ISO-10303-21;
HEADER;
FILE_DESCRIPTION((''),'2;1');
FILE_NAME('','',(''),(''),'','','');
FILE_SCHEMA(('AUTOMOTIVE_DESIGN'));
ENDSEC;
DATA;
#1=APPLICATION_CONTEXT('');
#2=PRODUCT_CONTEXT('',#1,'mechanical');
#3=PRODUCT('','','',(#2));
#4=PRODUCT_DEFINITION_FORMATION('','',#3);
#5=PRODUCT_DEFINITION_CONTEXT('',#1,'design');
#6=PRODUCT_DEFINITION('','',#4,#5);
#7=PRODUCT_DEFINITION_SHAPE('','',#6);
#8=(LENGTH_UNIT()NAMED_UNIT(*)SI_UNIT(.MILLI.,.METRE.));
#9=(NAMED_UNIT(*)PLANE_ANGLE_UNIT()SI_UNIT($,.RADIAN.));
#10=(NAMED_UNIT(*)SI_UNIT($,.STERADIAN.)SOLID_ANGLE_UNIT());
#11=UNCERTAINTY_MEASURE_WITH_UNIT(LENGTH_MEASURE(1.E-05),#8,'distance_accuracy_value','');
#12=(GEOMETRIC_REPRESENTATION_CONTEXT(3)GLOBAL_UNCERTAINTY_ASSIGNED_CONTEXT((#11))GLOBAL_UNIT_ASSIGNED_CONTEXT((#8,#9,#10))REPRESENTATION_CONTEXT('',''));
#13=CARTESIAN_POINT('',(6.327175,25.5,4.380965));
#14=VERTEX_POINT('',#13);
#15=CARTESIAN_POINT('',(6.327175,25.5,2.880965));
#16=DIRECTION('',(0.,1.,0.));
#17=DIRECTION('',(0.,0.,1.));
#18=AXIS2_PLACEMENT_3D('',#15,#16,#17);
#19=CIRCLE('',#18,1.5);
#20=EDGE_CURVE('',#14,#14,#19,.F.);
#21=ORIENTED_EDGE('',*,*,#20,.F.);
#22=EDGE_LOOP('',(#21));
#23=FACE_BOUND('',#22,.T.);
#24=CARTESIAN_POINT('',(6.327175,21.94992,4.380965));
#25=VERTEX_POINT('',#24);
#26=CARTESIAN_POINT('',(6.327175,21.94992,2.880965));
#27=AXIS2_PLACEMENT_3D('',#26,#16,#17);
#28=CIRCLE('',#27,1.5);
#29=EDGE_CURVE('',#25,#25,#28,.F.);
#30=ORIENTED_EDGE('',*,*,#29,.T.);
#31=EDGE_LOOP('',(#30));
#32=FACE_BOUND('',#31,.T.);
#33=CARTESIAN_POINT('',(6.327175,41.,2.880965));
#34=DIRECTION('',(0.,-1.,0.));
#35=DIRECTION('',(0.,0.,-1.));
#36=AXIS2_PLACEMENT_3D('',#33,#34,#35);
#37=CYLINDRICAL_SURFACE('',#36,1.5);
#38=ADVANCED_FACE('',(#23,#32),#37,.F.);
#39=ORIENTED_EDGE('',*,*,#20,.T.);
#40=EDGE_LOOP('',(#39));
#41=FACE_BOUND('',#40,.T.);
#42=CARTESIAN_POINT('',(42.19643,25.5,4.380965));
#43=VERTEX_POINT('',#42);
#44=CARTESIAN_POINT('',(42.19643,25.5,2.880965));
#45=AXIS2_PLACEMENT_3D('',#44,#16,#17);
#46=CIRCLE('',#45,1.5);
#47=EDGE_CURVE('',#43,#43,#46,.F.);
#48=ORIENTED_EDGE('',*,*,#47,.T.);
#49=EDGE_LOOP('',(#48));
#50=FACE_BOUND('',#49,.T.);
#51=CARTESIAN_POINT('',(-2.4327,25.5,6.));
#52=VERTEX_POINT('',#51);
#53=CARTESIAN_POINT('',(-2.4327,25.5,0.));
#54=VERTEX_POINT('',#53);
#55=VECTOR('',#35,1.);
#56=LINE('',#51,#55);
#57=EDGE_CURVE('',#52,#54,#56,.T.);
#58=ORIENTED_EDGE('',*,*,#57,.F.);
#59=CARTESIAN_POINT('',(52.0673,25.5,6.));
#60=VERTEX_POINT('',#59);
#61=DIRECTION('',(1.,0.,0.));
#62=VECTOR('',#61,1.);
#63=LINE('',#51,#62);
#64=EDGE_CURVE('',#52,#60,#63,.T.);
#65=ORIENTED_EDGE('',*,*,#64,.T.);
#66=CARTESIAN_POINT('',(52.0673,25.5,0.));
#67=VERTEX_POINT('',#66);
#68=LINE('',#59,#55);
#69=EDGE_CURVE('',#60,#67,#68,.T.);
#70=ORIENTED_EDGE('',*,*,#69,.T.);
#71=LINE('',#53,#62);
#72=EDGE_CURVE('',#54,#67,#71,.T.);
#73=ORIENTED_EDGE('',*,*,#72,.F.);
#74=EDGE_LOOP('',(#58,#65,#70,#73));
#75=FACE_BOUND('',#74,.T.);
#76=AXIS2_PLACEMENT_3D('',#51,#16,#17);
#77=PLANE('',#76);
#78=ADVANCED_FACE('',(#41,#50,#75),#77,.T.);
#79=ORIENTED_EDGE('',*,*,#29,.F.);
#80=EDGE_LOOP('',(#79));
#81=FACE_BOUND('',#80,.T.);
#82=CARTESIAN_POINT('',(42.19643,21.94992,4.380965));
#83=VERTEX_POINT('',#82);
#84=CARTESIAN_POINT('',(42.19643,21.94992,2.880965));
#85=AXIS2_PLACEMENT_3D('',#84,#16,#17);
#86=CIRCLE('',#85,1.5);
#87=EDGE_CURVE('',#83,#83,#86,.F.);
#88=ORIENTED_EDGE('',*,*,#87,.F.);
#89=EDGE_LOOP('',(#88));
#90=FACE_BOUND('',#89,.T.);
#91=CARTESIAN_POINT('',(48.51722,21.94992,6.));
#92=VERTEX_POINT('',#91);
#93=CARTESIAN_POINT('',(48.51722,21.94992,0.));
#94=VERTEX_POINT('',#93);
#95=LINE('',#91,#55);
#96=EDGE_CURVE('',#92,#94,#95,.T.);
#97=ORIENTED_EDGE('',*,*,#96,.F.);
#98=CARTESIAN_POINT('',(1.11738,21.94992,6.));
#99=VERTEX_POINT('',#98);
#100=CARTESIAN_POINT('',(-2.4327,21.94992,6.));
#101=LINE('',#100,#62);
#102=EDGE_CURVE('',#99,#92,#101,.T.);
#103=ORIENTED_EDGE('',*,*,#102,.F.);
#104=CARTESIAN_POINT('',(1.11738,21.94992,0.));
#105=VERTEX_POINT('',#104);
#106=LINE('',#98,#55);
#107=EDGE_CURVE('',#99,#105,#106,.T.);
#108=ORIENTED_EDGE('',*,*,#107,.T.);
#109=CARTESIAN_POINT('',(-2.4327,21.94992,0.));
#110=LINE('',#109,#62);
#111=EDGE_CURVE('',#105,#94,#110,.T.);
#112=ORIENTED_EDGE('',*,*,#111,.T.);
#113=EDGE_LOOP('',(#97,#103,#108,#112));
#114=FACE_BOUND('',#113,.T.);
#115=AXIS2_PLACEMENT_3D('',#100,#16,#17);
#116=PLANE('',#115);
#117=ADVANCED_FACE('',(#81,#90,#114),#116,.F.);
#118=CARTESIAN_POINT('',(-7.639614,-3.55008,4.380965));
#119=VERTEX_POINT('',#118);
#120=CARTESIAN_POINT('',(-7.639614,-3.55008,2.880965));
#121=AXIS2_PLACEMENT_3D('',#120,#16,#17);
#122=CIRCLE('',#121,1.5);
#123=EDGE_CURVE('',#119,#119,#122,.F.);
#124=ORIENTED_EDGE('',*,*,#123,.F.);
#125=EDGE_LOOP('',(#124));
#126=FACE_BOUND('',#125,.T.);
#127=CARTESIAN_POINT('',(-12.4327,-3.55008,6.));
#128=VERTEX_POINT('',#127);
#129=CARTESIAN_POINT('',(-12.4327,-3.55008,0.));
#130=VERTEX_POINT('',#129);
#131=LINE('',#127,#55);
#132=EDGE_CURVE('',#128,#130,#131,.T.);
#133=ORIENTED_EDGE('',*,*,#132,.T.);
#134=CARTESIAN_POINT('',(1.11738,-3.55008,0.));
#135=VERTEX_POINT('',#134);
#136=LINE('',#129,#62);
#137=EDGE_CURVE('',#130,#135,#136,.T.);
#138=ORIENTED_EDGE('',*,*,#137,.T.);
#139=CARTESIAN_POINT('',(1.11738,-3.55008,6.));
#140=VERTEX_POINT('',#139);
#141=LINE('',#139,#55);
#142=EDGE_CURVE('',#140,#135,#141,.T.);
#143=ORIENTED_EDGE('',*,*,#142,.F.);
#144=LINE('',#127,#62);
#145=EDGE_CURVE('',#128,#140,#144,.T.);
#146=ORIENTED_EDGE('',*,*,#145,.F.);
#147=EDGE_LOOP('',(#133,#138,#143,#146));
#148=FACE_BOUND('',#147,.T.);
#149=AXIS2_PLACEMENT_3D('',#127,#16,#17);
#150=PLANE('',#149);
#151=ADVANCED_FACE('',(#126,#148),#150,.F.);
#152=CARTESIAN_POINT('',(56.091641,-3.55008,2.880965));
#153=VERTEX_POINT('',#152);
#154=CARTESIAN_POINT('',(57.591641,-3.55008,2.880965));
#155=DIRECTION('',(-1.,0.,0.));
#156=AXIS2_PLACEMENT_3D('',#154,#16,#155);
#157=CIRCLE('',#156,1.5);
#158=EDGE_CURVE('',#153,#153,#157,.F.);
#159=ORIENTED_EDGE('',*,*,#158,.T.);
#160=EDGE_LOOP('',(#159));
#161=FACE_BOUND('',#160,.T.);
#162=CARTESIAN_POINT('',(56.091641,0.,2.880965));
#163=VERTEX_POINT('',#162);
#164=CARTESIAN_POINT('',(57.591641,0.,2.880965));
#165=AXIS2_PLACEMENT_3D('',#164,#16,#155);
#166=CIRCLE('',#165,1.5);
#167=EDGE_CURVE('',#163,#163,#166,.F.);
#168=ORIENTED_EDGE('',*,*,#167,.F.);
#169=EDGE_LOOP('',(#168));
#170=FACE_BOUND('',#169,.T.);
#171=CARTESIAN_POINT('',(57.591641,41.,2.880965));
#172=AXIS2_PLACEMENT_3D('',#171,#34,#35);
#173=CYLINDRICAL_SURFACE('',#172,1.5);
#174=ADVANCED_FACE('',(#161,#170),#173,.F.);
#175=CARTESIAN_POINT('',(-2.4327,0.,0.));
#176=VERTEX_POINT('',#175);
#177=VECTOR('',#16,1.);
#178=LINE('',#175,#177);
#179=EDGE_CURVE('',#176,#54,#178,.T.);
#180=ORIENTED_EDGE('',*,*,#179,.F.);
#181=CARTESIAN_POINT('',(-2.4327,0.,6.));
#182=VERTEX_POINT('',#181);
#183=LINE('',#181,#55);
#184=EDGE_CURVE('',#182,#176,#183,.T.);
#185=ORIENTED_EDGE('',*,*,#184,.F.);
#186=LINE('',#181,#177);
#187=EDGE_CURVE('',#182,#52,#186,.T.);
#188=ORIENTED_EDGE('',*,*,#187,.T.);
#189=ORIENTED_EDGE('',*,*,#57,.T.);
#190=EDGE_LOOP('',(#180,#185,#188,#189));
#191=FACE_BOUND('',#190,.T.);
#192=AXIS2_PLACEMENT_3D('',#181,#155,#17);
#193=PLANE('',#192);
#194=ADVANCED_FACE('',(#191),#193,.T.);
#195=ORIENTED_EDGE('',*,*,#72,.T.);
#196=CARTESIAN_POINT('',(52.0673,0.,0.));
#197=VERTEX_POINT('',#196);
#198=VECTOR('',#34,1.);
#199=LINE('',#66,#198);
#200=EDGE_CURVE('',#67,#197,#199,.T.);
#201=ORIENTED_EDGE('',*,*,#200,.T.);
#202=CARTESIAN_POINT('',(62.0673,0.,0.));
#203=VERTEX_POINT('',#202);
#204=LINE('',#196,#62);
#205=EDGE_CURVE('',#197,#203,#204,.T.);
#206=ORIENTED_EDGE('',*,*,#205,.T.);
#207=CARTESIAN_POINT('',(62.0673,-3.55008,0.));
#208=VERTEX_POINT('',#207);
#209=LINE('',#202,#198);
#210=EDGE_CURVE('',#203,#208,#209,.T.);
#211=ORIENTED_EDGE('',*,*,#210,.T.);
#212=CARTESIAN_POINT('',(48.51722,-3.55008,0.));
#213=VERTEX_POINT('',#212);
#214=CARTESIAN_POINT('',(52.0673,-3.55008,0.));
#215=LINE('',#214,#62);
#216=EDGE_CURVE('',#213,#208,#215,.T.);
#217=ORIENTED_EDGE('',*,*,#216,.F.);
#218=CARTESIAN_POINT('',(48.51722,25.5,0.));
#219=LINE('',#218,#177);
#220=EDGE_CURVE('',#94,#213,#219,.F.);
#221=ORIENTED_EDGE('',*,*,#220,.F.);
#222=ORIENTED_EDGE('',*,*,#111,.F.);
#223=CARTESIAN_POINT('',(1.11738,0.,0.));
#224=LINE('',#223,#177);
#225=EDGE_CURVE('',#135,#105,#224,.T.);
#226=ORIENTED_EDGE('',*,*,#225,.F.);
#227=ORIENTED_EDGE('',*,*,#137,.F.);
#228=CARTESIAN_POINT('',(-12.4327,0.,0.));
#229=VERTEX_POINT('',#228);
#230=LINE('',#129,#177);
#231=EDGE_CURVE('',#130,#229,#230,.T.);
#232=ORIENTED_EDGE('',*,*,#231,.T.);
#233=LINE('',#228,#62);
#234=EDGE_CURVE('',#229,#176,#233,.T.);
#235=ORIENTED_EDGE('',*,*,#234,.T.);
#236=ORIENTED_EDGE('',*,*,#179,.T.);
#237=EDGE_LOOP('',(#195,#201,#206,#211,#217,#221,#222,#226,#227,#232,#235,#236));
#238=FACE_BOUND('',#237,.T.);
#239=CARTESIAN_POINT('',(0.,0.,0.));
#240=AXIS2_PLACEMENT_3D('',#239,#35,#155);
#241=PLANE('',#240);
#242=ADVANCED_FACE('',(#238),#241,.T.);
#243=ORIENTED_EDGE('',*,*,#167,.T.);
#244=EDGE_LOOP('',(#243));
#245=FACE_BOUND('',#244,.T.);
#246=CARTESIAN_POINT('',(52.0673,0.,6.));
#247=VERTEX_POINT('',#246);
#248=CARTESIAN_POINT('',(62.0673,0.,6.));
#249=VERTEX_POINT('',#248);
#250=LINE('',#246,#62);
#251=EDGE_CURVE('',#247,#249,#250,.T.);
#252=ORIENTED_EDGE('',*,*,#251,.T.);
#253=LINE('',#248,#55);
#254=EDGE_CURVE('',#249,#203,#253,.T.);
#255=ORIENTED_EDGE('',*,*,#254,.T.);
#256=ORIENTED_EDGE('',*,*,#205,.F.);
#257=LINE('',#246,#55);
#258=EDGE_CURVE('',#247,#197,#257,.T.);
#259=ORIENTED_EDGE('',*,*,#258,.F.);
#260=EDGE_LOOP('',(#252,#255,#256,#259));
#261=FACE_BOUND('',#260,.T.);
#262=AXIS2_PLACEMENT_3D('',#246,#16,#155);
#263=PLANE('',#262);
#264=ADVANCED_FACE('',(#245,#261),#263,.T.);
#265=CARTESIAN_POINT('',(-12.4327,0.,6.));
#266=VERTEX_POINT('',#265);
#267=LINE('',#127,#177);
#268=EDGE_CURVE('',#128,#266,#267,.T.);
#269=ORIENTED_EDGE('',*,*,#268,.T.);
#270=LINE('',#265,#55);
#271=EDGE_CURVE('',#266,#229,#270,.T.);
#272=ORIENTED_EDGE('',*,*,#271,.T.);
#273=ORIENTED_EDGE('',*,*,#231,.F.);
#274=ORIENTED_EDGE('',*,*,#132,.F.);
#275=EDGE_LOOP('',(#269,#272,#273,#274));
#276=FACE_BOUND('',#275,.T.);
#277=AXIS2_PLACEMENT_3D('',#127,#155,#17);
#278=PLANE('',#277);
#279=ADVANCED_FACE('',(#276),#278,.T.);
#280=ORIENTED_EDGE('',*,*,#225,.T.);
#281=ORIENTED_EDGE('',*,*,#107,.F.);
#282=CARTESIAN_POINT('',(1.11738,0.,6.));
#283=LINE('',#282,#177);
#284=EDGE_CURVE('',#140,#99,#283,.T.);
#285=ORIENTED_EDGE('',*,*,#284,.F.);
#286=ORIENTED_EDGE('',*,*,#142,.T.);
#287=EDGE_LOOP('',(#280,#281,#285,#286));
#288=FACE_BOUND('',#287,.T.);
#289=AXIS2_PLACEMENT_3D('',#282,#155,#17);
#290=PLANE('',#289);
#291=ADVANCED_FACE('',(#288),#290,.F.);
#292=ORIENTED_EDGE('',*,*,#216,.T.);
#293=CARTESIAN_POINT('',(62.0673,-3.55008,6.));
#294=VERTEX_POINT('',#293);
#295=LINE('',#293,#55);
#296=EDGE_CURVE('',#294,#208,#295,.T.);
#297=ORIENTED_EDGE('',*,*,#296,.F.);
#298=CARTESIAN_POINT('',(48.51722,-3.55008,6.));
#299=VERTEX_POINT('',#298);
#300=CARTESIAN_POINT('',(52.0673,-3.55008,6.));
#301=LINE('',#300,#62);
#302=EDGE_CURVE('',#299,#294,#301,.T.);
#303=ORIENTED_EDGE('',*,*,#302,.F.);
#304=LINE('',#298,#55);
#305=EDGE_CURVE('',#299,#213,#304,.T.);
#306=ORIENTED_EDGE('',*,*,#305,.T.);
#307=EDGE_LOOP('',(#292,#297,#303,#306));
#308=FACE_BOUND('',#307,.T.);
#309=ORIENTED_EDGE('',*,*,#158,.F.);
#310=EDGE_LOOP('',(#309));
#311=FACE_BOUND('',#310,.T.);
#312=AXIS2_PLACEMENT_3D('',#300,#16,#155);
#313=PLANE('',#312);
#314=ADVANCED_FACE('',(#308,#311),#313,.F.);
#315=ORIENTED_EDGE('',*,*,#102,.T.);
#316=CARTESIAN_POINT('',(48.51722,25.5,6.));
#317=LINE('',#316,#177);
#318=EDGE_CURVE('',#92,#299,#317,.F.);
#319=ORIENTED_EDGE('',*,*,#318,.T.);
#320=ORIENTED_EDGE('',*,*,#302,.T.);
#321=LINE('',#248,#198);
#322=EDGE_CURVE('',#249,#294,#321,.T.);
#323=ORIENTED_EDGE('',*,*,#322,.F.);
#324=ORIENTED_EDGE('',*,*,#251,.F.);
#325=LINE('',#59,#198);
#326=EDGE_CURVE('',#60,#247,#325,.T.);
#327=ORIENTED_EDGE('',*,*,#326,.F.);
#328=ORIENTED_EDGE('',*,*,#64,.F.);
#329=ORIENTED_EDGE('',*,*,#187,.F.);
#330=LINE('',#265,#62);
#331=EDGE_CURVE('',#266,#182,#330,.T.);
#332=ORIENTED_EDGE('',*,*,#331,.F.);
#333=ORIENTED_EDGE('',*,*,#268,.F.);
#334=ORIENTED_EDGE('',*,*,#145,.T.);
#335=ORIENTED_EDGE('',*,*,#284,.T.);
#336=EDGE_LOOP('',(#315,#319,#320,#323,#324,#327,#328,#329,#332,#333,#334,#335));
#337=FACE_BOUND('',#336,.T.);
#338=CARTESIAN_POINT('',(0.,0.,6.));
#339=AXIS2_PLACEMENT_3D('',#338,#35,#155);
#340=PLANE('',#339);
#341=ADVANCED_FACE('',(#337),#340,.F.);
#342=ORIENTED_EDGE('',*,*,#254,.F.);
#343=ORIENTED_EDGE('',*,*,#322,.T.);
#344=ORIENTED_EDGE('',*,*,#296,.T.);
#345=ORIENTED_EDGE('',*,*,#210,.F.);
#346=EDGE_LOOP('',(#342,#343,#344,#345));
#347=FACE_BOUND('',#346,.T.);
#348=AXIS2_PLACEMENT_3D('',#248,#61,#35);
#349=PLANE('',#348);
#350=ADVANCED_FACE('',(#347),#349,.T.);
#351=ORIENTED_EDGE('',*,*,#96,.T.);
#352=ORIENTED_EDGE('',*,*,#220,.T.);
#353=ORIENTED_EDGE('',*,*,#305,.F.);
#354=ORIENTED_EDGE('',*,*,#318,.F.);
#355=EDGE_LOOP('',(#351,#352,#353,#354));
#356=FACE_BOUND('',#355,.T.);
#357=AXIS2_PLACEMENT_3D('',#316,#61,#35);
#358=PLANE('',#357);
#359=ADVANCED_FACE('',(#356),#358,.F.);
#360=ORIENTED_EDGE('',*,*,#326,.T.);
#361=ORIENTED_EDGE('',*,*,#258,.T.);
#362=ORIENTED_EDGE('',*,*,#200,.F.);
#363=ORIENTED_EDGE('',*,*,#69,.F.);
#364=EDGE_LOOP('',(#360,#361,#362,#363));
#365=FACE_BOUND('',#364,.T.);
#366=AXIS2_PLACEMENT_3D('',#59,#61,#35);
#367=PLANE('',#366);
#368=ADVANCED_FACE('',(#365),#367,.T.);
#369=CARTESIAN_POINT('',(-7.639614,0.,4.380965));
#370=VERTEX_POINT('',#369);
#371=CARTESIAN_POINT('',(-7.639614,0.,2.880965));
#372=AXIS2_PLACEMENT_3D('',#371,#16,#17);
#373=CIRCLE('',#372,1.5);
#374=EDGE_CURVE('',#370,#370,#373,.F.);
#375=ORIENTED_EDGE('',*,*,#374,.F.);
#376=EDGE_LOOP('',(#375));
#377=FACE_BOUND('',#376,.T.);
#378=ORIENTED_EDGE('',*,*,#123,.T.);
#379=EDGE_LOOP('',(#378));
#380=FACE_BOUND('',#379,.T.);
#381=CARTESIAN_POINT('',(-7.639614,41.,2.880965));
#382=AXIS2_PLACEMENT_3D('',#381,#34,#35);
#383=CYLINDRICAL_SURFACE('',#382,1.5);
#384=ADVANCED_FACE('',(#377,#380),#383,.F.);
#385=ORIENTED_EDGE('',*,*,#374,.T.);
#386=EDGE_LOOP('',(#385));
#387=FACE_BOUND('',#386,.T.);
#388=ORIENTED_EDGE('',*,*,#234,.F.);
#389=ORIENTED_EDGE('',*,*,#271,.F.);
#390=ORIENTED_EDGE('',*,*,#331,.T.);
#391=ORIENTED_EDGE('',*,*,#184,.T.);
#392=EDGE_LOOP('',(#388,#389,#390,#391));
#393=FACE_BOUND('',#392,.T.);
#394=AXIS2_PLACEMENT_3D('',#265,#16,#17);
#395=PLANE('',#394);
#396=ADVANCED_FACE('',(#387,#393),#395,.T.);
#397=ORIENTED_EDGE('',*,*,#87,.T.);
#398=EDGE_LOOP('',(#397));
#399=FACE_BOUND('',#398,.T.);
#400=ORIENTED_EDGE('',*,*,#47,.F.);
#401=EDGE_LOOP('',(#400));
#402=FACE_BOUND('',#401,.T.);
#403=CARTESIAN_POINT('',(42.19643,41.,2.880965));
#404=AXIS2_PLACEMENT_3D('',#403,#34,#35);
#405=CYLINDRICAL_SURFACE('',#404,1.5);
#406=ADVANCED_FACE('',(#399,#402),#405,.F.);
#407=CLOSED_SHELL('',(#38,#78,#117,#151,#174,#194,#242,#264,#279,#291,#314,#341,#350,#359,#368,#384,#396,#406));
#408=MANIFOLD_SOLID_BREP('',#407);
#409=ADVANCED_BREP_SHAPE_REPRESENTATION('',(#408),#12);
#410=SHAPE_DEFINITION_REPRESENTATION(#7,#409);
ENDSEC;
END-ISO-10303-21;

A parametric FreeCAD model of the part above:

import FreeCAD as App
import Part
import Sketcher


def add_polygon(sketch, points):
    """Adds a closed chain of lines whose ends are joined by coincident constraints."""
    first, n = sketch.GeometryCount, len(points)
    for a, b in zip(points, points[1:] + points[:1]):
        sketch.addGeometry(Part.LineSegment(App.Vector(*a, 0), App.Vector(*b, 0)), False)
    for i in range(n):
        sketch.addConstraint(Sketcher.Constraint("Coincident", first + i, 2, first + (i + 1) % n, 1))

doc = App.newDocument("Part")
body = doc.addObject("PartDesign::Body", "Body")

sketch1 = doc.addObject("Sketcher::SketchObject", "Sketch")
body.addObject(sketch1)
sketch1.AttachmentSupport = (doc.XY_Plane, [""])
sketch1.MapMode = "FlatFace"
add_polygon(sketch1, [(-2.4, 0), (-12.4, 0), (-12.4, -3.6), (1.1, -3.6), (1.1, 21.9), (48.5, 21.9), (48.5, -3.6), (62.1, -3.6), (62.1, 0), (52.1, 0), (52.1, 25.5), (-2.4, 25.5)])
sketch1.addConstraint(Sketcher.Constraint("Horizontal", 0))
sketch1.addConstraint(Sketcher.Constraint("Vertical", 1))
sketch1.addConstraint(Sketcher.Constraint("Horizontal", 2))
sketch1.addConstraint(Sketcher.Constraint("Vertical", 3))
sketch1.addConstraint(Sketcher.Constraint("Horizontal", 4))
sketch1.addConstraint(Sketcher.Constraint("Vertical", 5))
sketch1.addConstraint(Sketcher.Constraint("Horizontal", 6))
sketch1.addConstraint(Sketcher.Constraint("Vertical", 7))
sketch1.addConstraint(Sketcher.Constraint("Horizontal", 8))
sketch1.addConstraint(Sketcher.Constraint("Vertical", 9))
sketch1.addConstraint(Sketcher.Constraint("Horizontal", 10))
sketch1.addConstraint(Sketcher.Constraint("Vertical", 11))
sketch1.addConstraint(Sketcher.Constraint("PointOnObject", 0, 2, -1))
sketch1.addConstraint(Sketcher.Constraint("PointOnObject", 7, 2, -1))
sketch1.addConstraint(Sketcher.Constraint("Horizontal", 2, 2, 5, 2))
sketch1.addConstraint(Sketcher.Constraint("Equal", 2, 6))
sketch1.addConstraint(Sketcher.Constraint("Equal", 0, 8))
sketch1.addConstraint(Sketcher.Constraint("Equal", 5, 9))
sketch1.addConstraint(Sketcher.Constraint("DistanceX", 0, 2, 0, 1, 10.0))
sketch1.addConstraint(Sketcher.Constraint("DistanceX", 10, 2, 10, 1, 54.5))
sketch1.addConstraint(Sketcher.Constraint("DistanceY", 3, 1, 3, 2, 25.5))
sketch1.addConstraint(Sketcher.Constraint("DistanceX", 2, 1, 2, 2, 13.55008))
sketch1.addConstraint(Sketcher.Constraint("DistanceY", 1, 2, 1, 1, 3.55008))
sketch1.addConstraint(Sketcher.Constraint("DistanceX", 0, 2, -1, 1, 12.4327))
pad1 = doc.addObject("PartDesign::Pad", "Pad")
body.addObject(pad1)
pad1.Profile = sketch1
pad1.Length = 6

sketch2 = doc.addObject("Sketcher::SketchObject", "Sketch001")
body.addObject(sketch2)
sketch2.AttachmentSupport = (doc.XZ_Plane, [""])
sketch2.MapMode = "FlatFace"
sketch2.addGeometry(Part.Circle(App.Vector(-7.6, 2.9, 0), App.Vector(0, 0, 1), 1.5), False)
sketch2.addGeometry(Part.Circle(App.Vector(6.3, 2.9, 0), App.Vector(0, 0, 1), 1.5), False)
sketch2.addGeometry(Part.Circle(App.Vector(42.2, 2.9, 0), App.Vector(0, 0, 1), 1.5), False)
sketch2.addGeometry(Part.Circle(App.Vector(57.6, 2.9, 0), App.Vector(0, 0, 1), 1.5), False)
sketch2.addConstraint(Sketcher.Constraint("Equal", 0, 1))
sketch2.addConstraint(Sketcher.Constraint("Equal", 1, 2))
sketch2.addConstraint(Sketcher.Constraint("Equal", 2, 3))
sketch2.addConstraint(Sketcher.Constraint("Horizontal", 0, 3, 1, 3))
sketch2.addConstraint(Sketcher.Constraint("Horizontal", 1, 3, 2, 3))
sketch2.addConstraint(Sketcher.Constraint("Horizontal", 2, 3, 3, 3))
sketch2.addConstraint(Sketcher.Constraint("Diameter", 0, 3.0))
sketch2.addConstraint(Sketcher.Constraint("DistanceX", -1, 1, 2, 3, 42.19643))
sketch2.addConstraint(Sketcher.Constraint("DistanceX", -1, 1, 3, 3, 57.591641))
sketch2.addConstraint(Sketcher.Constraint("DistanceX", 0, 3, 1, 3, 13.966789))
sketch2.addConstraint(Sketcher.Constraint("DistanceX", 0, 3, -1, 1, 7.639614))
sketch2.addConstraint(Sketcher.Constraint("DistanceY", -1, 1, 0, 3, 2.880965))
pocket1 = doc.addObject("PartDesign::Pocket", "Pocket")
body.addObject(pocket1)
pocket1.Profile = sketch2
pocket1.Type = "ThroughAll"
pocket1.Midplane = True

doc.recompute()
